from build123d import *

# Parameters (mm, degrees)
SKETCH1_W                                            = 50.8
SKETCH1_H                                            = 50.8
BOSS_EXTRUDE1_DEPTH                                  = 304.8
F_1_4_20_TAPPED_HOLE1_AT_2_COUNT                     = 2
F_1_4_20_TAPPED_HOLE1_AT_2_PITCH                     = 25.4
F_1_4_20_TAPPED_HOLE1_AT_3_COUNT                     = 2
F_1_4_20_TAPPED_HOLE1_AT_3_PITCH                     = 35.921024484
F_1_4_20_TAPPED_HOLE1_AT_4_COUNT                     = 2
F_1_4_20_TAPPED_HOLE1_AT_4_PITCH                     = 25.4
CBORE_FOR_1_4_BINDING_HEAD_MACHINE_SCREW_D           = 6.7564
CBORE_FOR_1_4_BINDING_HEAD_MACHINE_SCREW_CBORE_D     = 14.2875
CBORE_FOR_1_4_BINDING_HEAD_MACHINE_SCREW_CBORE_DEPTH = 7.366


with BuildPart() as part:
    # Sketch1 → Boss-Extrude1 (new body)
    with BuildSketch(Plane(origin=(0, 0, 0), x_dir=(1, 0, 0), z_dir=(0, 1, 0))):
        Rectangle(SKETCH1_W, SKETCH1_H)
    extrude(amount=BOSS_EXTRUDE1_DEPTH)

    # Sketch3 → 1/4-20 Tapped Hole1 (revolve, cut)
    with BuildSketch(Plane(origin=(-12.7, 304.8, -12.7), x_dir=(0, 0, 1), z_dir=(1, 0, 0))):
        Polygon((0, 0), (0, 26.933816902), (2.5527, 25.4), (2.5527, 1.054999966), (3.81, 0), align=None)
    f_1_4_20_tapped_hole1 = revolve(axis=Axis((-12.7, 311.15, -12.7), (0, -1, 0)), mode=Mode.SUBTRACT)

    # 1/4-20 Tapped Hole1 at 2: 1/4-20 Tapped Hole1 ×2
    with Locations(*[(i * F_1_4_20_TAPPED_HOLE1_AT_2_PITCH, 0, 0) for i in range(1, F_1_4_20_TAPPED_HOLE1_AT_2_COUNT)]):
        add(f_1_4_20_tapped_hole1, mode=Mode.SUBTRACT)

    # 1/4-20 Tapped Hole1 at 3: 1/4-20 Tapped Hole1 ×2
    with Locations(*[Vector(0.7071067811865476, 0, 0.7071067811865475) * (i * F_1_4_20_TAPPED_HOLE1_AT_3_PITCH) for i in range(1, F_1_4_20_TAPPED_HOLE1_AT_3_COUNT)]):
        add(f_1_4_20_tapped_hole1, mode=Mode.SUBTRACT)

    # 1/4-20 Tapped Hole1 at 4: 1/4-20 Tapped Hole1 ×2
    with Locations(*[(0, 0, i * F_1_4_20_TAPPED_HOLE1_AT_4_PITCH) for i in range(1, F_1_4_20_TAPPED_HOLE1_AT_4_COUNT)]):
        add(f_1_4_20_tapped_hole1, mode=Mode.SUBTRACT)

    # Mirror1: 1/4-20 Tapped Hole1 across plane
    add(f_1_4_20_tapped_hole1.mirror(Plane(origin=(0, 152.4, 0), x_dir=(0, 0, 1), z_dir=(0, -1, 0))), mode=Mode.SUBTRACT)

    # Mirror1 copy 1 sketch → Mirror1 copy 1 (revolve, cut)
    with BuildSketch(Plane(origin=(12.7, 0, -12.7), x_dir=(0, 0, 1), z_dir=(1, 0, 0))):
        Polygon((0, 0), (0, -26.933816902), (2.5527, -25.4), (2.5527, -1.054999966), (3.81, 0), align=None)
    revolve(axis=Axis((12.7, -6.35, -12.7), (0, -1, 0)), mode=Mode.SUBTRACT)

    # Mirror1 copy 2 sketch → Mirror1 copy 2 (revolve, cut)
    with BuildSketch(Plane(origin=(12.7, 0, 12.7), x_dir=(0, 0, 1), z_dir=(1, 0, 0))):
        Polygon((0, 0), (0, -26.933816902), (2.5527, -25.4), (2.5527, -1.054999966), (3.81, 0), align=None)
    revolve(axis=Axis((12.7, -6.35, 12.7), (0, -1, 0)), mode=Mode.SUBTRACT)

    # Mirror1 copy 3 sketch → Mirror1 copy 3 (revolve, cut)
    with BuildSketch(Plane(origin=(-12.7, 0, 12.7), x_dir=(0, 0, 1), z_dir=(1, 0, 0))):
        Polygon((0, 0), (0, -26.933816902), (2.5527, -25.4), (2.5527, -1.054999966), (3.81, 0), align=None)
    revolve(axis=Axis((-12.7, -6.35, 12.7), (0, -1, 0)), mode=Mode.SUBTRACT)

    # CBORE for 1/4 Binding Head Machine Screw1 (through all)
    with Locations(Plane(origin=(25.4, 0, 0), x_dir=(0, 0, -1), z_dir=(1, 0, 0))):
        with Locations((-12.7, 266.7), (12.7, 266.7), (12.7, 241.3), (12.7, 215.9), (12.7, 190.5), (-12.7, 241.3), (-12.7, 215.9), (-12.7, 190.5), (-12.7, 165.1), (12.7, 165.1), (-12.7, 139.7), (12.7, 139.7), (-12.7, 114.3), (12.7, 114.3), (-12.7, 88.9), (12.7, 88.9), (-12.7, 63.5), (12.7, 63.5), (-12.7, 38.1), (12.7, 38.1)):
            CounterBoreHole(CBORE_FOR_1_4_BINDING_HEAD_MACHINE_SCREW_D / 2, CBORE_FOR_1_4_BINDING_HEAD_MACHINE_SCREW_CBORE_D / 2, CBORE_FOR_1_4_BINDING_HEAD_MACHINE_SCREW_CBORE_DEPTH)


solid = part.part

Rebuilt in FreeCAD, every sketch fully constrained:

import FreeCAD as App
import Part
import Sketcher
from FreeCAD import Vector
Q = App.Units.Quantity

doc = App.newDocument("Part")
params = doc.addObject("Spreadsheet::Sheet", "Params")
for row, (alias, value) in enumerate([
    ("sketch1_width", "2 in"),
    ("pad1_length", "12 in"),
    ("sketch2_height", "0.15 in"),
    ("groove_angle", "360 deg"),
    ("linearpattern_pitch", "1 in"),
    ("linearpattern2_pitch", "35.921024 mm"),
    ("linearpattern3_pitch", "1 in"),
    ("sketch3_height", "0.15 in"),
    ("groove2_angle", "360 deg"),
    ("sketch4_height", "0.15 in"),
    ("groove3_angle", "360 deg"),
    ("sketch5_height", "0.15 in"),
    ("groove4_angle", "360 deg"),
    ("sketch6_diameter", "0.266 in"),
    ("hole_diameter", "0.266 in"),
    ("hole_cbore_diameter", "0.5625 in"),
    ("hole_cbore_depth", "0.29 in"),
], start=1):
    params.set(f"A{row}", alias)
    params.set(f"B{row}", "=" + value)
    params.setAlias(f"B{row}", alias)

body = doc.addObject("PartDesign::Body", "Body")

# Sketch on XZ plane
sketch1 = body.newObject("Sketcher::SketchObject", "Sketch")
sketch1.AttachmentSupport = (doc.getObject("XZ_Plane"), [""])
sketch1.MapMode = "FlatFace"
sketch1.addGeometry([
    Part.LineSegment(Vector(-25.4, -25.4, 0), Vector(-25.4, 25.4, 0)),
    Part.LineSegment(Vector(-25.4, 25.4, 0), Vector(25.4, 25.4, 0)),
    Part.LineSegment(Vector(25.4, 25.4, 0), Vector(25.4, -25.4, 0)),
    Part.LineSegment(Vector(25.4, -25.4, 0), Vector(-25.4, -25.4, 0)),
], False)
sketch1.addConstraint([
    Sketcher.Constraint("Coincident", 0, 2, 1, 1),
    Sketcher.Constraint("Coincident", 1, 2, 2, 1),
    Sketcher.Constraint("Coincident", 2, 2, 3, 1),
    Sketcher.Constraint("Coincident", 3, 2, 0, 1),
    Sketcher.Constraint("Vertical", 0),
    Sketcher.Constraint("Horizontal", 1),
    Sketcher.Constraint("Vertical", 2),
    Sketcher.Constraint("Horizontal", 3),
    Sketcher.Constraint("Symmetric", 0, 2, 2, 2, -1, 1),
    Sketcher.Constraint("Equal", 3, 0),
    Sketcher.Constraint("DistanceX", 1, 1, 1, 2, Q("2 in")),
])
sketch1.setExpression("Constraints[10]", "Params.sketch1_width")
pad1 = body.newObject("PartDesign::Pad", "Pad")
pad1.Profile = sketch1
pad1.setExpression("Length", "Params.pad1_length")
pad1.Reversed = True

# Sketch on YZ plane
sketch2 = body.newObject("Sketcher::SketchObject", "Sketch001")
sketch2.AttachmentSupport = (doc.getObject("YZ_Plane"), [""])
sketch2.MapMode = "FlatFace"
sketch2.AttachmentOffset = App.Placement(Vector(0, 0, -0.5 * 25.4), App.Rotation())
sketch2.addGeometry([
    Part.LineSegment(Vector(277.866183, -12.7, 0), Vector(304.8, -12.7, 0)),  # 0
    Part.LineSegment(Vector(304.8, -12.7, 0), Vector(304.8, -8.89, 0)),  # 1
    Part.LineSegment(Vector(304.8, -8.89, 0), Vector(303.745, -10.1473, 0)),  # 2
    Part.LineSegment(Vector(303.745, -10.1473, 0), Vector(279.4, -10.1473, 0)),  # 3
    Part.LineSegment(Vector(279.4, -10.1473, 0), Vector(277.866183, -12.7, 0)),  # 4
], False)
sketch2.addGeometry(Part.LineSegment(Vector(304.8, -12.7, 0), Vector(277.866183, -12.7, 0)), True)  # axis
sketch2.addConstraint([
    Sketcher.Constraint("Coincident", 0, 2, 1, 1),
    Sketcher.Constraint("Coincident", 1, 2, 2, 1),
    Sketcher.Constraint("Coincident", 2, 2, 3, 1),
    Sketcher.Constraint("Coincident", 3, 2, 4, 1),
    Sketcher.Constraint("Coincident", 4, 2, 0, 1),
    Sketcher.Constraint("Horizontal", 0),
    Sketcher.Constraint("Vertical", 1),
    Sketcher.Constraint("Horizontal", 3),
    Sketcher.Constraint("Horizontal", 5),
    Sketcher.Constraint("Coincident", 5, 1, 0, 2),
    Sketcher.Constraint("Equal", 0, 5),
    Sketcher.Constraint("DistanceX", -1, 1, 0, 2, Q("12 in")),
    Sketcher.Constraint("DistanceX", -1, 1, 3, 2, Q("11 in")),
    Sketcher.Constraint("Angle", 2, Q("-130 deg")),
    Sketcher.Constraint("Angle", 4, Q("-121 deg")),
    Sketcher.Constraint("DistanceY", 1, 1, 1, 2, Q("0.15 in")),
    Sketcher.Constraint("DistanceY", 0, 2, -1, 1, Q("0.5 in")),
    Sketcher.Constraint("DistanceX", 3, 2, 3, 1, 24.345),
])
sketch2.setExpression("Constraints[15]", "Params.sketch2_height")
groove = body.newObject("PartDesign::Groove", "Groove")
groove.Profile = sketch2
groove.ReferenceAxis = (sketch2, ["Axis0"])
groove.setExpression("Angle", "Params.groove_angle")
doc.recompute()

linearpattern = body.newObject("PartDesign::LinearPattern", "LinearPattern")
linearpattern.Originals = [groove]
linearpattern.Direction = (doc.getObject("X_Axis"), [""])
linearpattern.Mode = "offset"
linearpattern.setExpression("Offset", "Params.linearpattern_pitch")
linearpattern.Occurrences = 2
body.Tip = linearpattern
doc.recompute()

datumline = body.newObject("PartDesign::Line", "DatumLine")
datumline.Placement = App.Placement(Vector(0, 0, 0), App.Rotation(Vector(0, 0, 1), Vector(0.707106781, 0, 0.707106781)))
linearpattern2 = body.newObject("PartDesign::LinearPattern", "LinearPattern001")
linearpattern2.Originals = [groove]
linearpattern2.Direction = (datumline, [""])
linearpattern2.Mode = "offset"
linearpattern2.setExpression("Offset", "Params.linearpattern2_pitch")
linearpattern2.Occurrences = 2
body.Tip = linearpattern2
doc.recompute()

linearpattern3 = body.newObject("PartDesign::LinearPattern", "LinearPattern002")
linearpattern3.Originals = [groove]
linearpattern3.Direction = (doc.getObject("Z_Axis"), [""])
linearpattern3.Mode = "offset"
linearpattern3.setExpression("Offset", "Params.linearpattern3_pitch")
linearpattern3.Occurrences = 2
body.Tip = linearpattern3
doc.recompute()

datumplane = body.newObject("PartDesign::Plane", "DatumPlane")
datumplane.AttachmentSupport = (doc.getObject("XZ_Plane"), [""])
datumplane.MapMode = "FlatFace"
datumplane.AttachmentOffset = App.Placement(Vector(0, 0, -6 * 25.4), App.Rotation())
mirrored = body.newObject("PartDesign::Mirrored", "Mirrored")
mirrored.Originals = [groove]
mirrored.MirrorPlane = (datumplane, [""])
body.Tip = mirrored

# Sketch on YZ plane
sketch3 = body.newObject("Sketcher::SketchObject", "Sketch002")
sketch3.AttachmentSupport = (doc.getObject("YZ_Plane"), [""])
sketch3.MapMode = "FlatFace"
sketch3.AttachmentOffset = App.Placement(Vector(0, 0, 0.5 * 25.4), App.Rotation())
sketch3.addGeometry([
    Part.LineSegment(Vector(0, -12.7, 0), Vector(26.933817, -12.7, 0)),  # 0
    Part.LineSegment(Vector(26.933817, -12.7, 0), Vector(25.4, -10.1473, 0)),  # 1
    Part.LineSegment(Vector(25.4, -10.1473, 0), Vector(1.055, -10.1473, 0)),  # 2
    Part.LineSegment(Vector(1.055, -10.1473, 0), Vector(0, -8.89, 0)),  # 3
    Part.LineSegment(Vector(0, -8.89, 0), Vector(0, -12.7, 0)),  # 4
], False)
sketch3.addGeometry(Part.LineSegment(Vector(26.933817, -12.7, 0), Vector(0, -12.7, 0)), True)  # axis
sketch3.addConstraint([
    Sketcher.Constraint("Coincident", 0, 2, 1, 1),
    Sketcher.Constraint("Coincident", 1, 2, 2, 1),
    Sketcher.Constraint("Coincident", 2, 2, 3, 1),
    Sketcher.Constraint("Coincident", 3, 2, 4, 1),
    Sketcher.Constraint("Coincident", 4, 2, 0, 1),
    Sketcher.Constraint("Horizontal", 0),
    Sketcher.Constraint("Horizontal", 2),
    Sketcher.Constraint("Vertical", 4),
    Sketcher.Constraint("Horizontal", 5),
    Sketcher.Constraint("Coincident", 5, 1, 0, 2),
    Sketcher.Constraint("PointOnObject", 3, 2, -2),
    Sketcher.Constraint("PointOnObject", 5, 2, -2),
    Sketcher.Constraint("DistanceX", -1, 1, 1, 2, Q("1 in")),
    Sketcher.Constraint("Angle", 1, Q("121 deg")),
    Sketcher.Constraint("Angle", 3, Q("130 deg")),
    Sketcher.Constraint("DistanceY", 4, 2, 4, 1, Q("0.15 in")),
    Sketcher.Constraint("DistanceY", 0, 2, -1, 1, Q("0.5 in")),
    Sketcher.Constraint("DistanceX", 2, 2, 2, 1, 24.345),
])
sketch3.setExpression("Constraints[15]", "Params.sketch3_height")
groove2 = body.newObject("PartDesign::Groove", "Groove001")
groove2.Profile = sketch3
groove2.ReferenceAxis = (sketch3, ["Axis0"])
groove2.setExpression("Angle", "Params.groove2_angle")

# Sketch on YZ plane
sketch4 = body.newObject("Sketcher::SketchObject", "Sketch003")
sketch4.AttachmentSupport = (doc.getObject("YZ_Plane"), [""])
sketch4.MapMode = "FlatFace"
sketch4.AttachmentOffset = App.Placement(Vector(0, 0, 0.5 * 25.4), App.Rotation())
sketch4.addGeometry([
    Part.LineSegment(Vector(0, 12.7, 0), Vector(26.933817, 12.7, 0)),  # 0
    Part.LineSegment(Vector(26.933817, 12.7, 0), Vector(25.4, 15.2527, 0)),  # 1
    Part.LineSegment(Vector(25.4, 15.2527, 0), Vector(1.055, 15.2527, 0)),  # 2
    Part.LineSegment(Vector(1.055, 15.2527, 0), Vector(0, 16.51, 0)),  # 3
    Part.LineSegment(Vector(0, 16.51, 0), Vector(0, 12.7, 0)),  # 4
], False)
sketch4.addGeometry(Part.LineSegment(Vector(26.933817, 12.7, 0), Vector(0, 12.7, 0)), True)  # axis
sketch4.addConstraint([
    Sketcher.Constraint("Coincident", 0, 2, 1, 1),
    Sketcher.Constraint("Coincident", 1, 2, 2, 1),
    Sketcher.Constraint("Coincident", 2, 2, 3, 1),
    Sketcher.Constraint("Coincident", 3, 2, 4, 1),
    Sketcher.Constraint("Coincident", 4, 2, 0, 1),
    Sketcher.Constraint("Horizontal", 0),
    Sketcher.Constraint("Horizontal", 2),
    Sketcher.Constraint("Vertical", 4),
    Sketcher.Constraint("Horizontal", 5),
    Sketcher.Constraint("Coincident", 5, 1, 0, 2),
    Sketcher.Constraint("PointOnObject", 3, 2, -2),
    Sketcher.Constraint("PointOnObject", 5, 2, -2),
    Sketcher.Constraint("DistanceX", -1, 1, 1, 2, Q("1 in")),
    Sketcher.Constraint("Angle", 1, Q("121 deg")),
    Sketcher.Constraint("Angle", 3, Q("130 deg")),
    Sketcher.Constraint("DistanceY", 4, 2, 4, 1, Q("0.15 in")),
    Sketcher.Constraint("DistanceY", -1, 1, 0, 2, Q("0.5 in")),
    Sketcher.Constraint("DistanceX", 2, 2, 2, 1, 24.345),
])
sketch4.setExpression("Constraints[15]", "Params.sketch4_height")
groove3 = body.newObject("PartDesign::Groove", "Groove002")
groove3.Profile = sketch4
groove3.ReferenceAxis = (sketch4, ["Axis0"])
groove3.setExpression("Angle", "Params.groove3_angle")

# Sketch on YZ plane
sketch5 = body.newObject("Sketcher::SketchObject", "Sketch004")
sketch5.AttachmentSupport = (doc.getObject("YZ_Plane"), [""])
sketch5.MapMode = "FlatFace"
sketch5.AttachmentOffset = App.Placement(Vector(0, 0, -0.5 * 25.4), App.Rotation())
sketch5.addGeometry([
    Part.LineSegment(Vector(0, 12.7, 0), Vector(26.933817, 12.7, 0)),  # 0
    Part.LineSegment(Vector(26.933817, 12.7, 0), Vector(25.4, 15.2527, 0)),  # 1
    Part.LineSegment(Vector(25.4, 15.2527, 0), Vector(1.055, 15.2527, 0)),  # 2
    Part.LineSegment(Vector(1.055, 15.2527, 0), Vector(0, 16.51, 0)),  # 3
    Part.LineSegment(Vector(0, 16.51, 0), Vector(0, 12.7, 0)),  # 4
], False)
sketch5.addGeometry(Part.LineSegment(Vector(26.933817, 12.7, 0), Vector(0, 12.7, 0)), True)  # axis
sketch5.addConstraint([
    Sketcher.Constraint("Coincident", 0, 2, 1, 1),
    Sketcher.Constraint("Coincident", 1, 2, 2, 1),
    Sketcher.Constraint("Coincident", 2, 2, 3, 1),
    Sketcher.Constraint("Coincident", 3, 2, 4, 1),
    Sketcher.Constraint("Coincident", 4, 2, 0, 1),
    Sketcher.Constraint("Horizontal", 0),
    Sketcher.Constraint("Horizontal", 2),
    Sketcher.Constraint("Vertical", 4),
    Sketcher.Constraint("Horizontal", 5),
    Sketcher.Constraint("Coincident", 5, 1, 0, 2),
    Sketcher.Constraint("PointOnObject", 3, 2, -2),
    Sketcher.Constraint("PointOnObject", 5, 2, -2),
    Sketcher.Constraint("DistanceX", -1, 1, 1, 2, Q("1 in")),
    Sketcher.Constraint("Angle", 1, Q("121 deg")),
    Sketcher.Constraint("Angle", 3, Q("130 deg")),
    Sketcher.Constraint("DistanceY", 4, 2, 4, 1, Q("0.15 in")),
    Sketcher.Constraint("DistanceY", -1, 1, 0, 2, Q("0.5 in")),
    Sketcher.Constraint("DistanceX", 2, 2, 2, 1, 24.345),
])
sketch5.setExpression("Constraints[15]", "Params.sketch5_height")
groove4 = body.newObject("PartDesign::Groove", "Groove003")
groove4.Profile = sketch5
groove4.ReferenceAxis = (sketch5, ["Axis0"])
groove4.setExpression("Angle", "Params.groove4_angle")

# Sketch on YZ plane
sketch6 = body.newObject("Sketcher::SketchObject", "Sketch005")
sketch6.AttachmentSupport = (doc.getObject("YZ_Plane"), [""])
sketch6.MapMode = "FlatFace"
sketch6.AttachmentOffset = App.Placement(Vector(0, 0, 1 * 25.4), App.Rotation())
sketch6.addGeometry([
    Part.Circle(Vector(266.7, 12.7, 0), Vector(0, 0, 1), 3.3782),  # 0
    Part.Circle(Vector(266.7, -12.7, 0), Vector(0, 0, 1), 3.3782),  # 1
    Part.Circle(Vector(241.3, -12.7, 0), Vector(0, 0, 1), 3.3782),  # 2
    Part.Circle(Vector(215.9, -12.7, 0), Vector(0, 0, 1), 3.3782),  # 3
    Part.Circle(Vector(190.5, -12.7, 0), Vector(0, 0, 1), 3.3782),  # 4
    Part.Circle(Vector(241.3, 12.7, 0), Vector(0, 0, 1), 3.3782),  # 5
    Part.Circle(Vector(215.9, 12.7, 0), Vector(0, 0, 1), 3.3782),  # 6
    Part.Circle(Vector(190.5, 12.7, 0), Vector(0, 0, 1), 3.3782),  # 7
    Part.Circle(Vector(165.1, 12.7, 0), Vector(0, 0, 1), 3.3782),  # 8
    Part.Circle(Vector(165.1, -12.7, 0), Vector(0, 0, 1), 3.3782),  # 9
    Part.Circle(Vector(139.7, 12.7, 0), Vector(0, 0, 1), 3.3782),  # 10
    Part.Circle(Vector(139.7, -12.7, 0), Vector(0, 0, 1), 3.3782),  # 11
    Part.Circle(Vector(114.3, 12.7, 0), Vector(0, 0, 1), 3.3782),  # 12
    Part.Circle(Vector(114.3, -12.7, 0), Vector(0, 0, 1), 3.3782),  # 13
    Part.Circle(Vector(88.9, 12.7, 0), Vector(0, 0, 1), 3.3782),  # 14
    Part.Circle(Vector(88.9, -12.7, 0), Vector(0, 0, 1), 3.3782),  # 15
    Part.Circle(Vector(63.5, 12.7, 0), Vector(0, 0, 1), 3.3782),  # 16
    Part.Circle(Vector(63.5, -12.7, 0), Vector(0, 0, 1), 3.3782),  # 17
    Part.Circle(Vector(38.1, 12.7, 0), Vector(0, 0, 1), 3.3782),  # 18
    Part.Circle(Vector(38.1, -12.7, 0), Vector(0, 0, 1), 3.3782),  # 19
], False)
sketch6.addConstraint([
    Sketcher.Constraint("Equal", 0, 1),
    Sketcher.Constraint("Equal", 1, 2),
    Sketcher.Constraint("Equal", 2, 3),
    Sketcher.Constraint("Equal", 3, 4),
    Sketcher.Constraint("Equal", 4, 5),
    Sketcher.Constraint("Equal", 5, 6),
    Sketcher.Constraint("Equal", 6, 7),
    Sketcher.Constraint("Equal", 7, 8),
    Sketcher.Constraint("Equal", 8, 9),
    Sketcher.Constraint("Equal", 9, 10),
    Sketcher.Constraint("Equal", 10, 11),
    Sketcher.Constraint("Equal", 11, 12),
    Sketcher.Constraint("Equal", 12, 13),
    Sketcher.Constraint("Equal", 13, 14),
    Sketcher.Constraint("Equal", 14, 15),
    Sketcher.Constraint("Equal", 15, 16),
    Sketcher.Constraint("Equal", 16, 17),
    Sketcher.Constraint("Equal", 17, 18),
    Sketcher.Constraint("Equal", 18, 19),
    Sketcher.Constraint("Symmetric", 0, 3, 1, 3, -1),
    Sketcher.Constraint("Symmetric", 2, 3, 5, 3, -1),
    Sketcher.Constraint("Symmetric", 3, 3, 6, 3, -1),
    Sketcher.Constraint("Symmetric", 4, 3, 7, 3, -1),
    Sketcher.Constraint("Symmetric", 8, 3, 9, 3, -1),
    Sketcher.Constraint("Symmetric", 10, 3, 11, 3, -1),
    Sketcher.Constraint("Symmetric", 12, 3, 13, 3, -1),
    Sketcher.Constraint("Symmetric", 14, 3, 15, 3, -1),
    Sketcher.Constraint("Symmetric", 16, 3, 17, 3, -1),
    Sketcher.Constraint("Symmetric", 18, 3, 19, 3, -1),
    Sketcher.Constraint("Horizontal", 1, 3, 2, 3),
    Sketcher.Constraint("Horizontal", 2, 3, 3, 3),
    Sketcher.Constraint("Horizontal", 3, 3, 4, 3),
    Sketcher.Constraint("Horizontal", 7, 3, 8, 3),
    Sketcher.Constraint("Horizontal", 8, 3, 10, 3),
    Sketcher.Constraint("Horizontal", 10, 3, 12, 3),
    Sketcher.Constraint("Horizontal", 12, 3, 14, 3),
    Sketcher.Constraint("Horizontal", 14, 3, 16, 3),
    Sketcher.Constraint("Horizontal", 16, 3, 18, 3),
    Sketcher.Constraint("Diameter", 0, Q("0.266 in")),
    Sketcher.Constraint("DistanceY", 1, 3, 0, 3, Q("1 in")),
    Sketcher.Constraint("DistanceX", 2, 3, 1, 3, Q("1 in")),
    Sketcher.Constraint("DistanceX", 3, 3, 2, 3, Q("1 in")),
    Sketcher.Constraint("DistanceX", 4, 3, 3, 3, Q("1 in")),
    Sketcher.Constraint("DistanceX", 8, 3, 7, 3, Q("1 in")),
    Sketcher.Constraint("DistanceX", 10, 3, 8, 3, Q("1 in")),
    Sketcher.Constraint("DistanceX", 12, 3, 10, 3, Q("1 in")),
    Sketcher.Constraint("DistanceX", 14, 3, 12, 3, Q("1 in")),
    Sketcher.Constraint("DistanceX", 16, 3, 14, 3, Q("1 in")),
    Sketcher.Constraint("DistanceX", 18, 3, 16, 3, Q("1 in")),
    Sketcher.Constraint("DistanceX", -1, 1, 0, 3, Q("10.5 in")),
])
sketch6.setExpression("Constraints[38]", "Params.sketch6_diameter")
doc.recompute()
hole = body.newObject("PartDesign::Hole", "Hole")
hole.Profile = sketch6
hole.ThreadType = "None"
hole.setExpression("Diameter", "Params.hole_diameter")
hole.DepthType = "ThroughAll"
hole.HoleCutType = "Counterbore"
hole.setExpression("HoleCutDiameter", "Params.hole_cbore_diameter")
hole.setExpression("HoleCutDepth", "Params.hole_cbore_depth")

doc.recompute()
